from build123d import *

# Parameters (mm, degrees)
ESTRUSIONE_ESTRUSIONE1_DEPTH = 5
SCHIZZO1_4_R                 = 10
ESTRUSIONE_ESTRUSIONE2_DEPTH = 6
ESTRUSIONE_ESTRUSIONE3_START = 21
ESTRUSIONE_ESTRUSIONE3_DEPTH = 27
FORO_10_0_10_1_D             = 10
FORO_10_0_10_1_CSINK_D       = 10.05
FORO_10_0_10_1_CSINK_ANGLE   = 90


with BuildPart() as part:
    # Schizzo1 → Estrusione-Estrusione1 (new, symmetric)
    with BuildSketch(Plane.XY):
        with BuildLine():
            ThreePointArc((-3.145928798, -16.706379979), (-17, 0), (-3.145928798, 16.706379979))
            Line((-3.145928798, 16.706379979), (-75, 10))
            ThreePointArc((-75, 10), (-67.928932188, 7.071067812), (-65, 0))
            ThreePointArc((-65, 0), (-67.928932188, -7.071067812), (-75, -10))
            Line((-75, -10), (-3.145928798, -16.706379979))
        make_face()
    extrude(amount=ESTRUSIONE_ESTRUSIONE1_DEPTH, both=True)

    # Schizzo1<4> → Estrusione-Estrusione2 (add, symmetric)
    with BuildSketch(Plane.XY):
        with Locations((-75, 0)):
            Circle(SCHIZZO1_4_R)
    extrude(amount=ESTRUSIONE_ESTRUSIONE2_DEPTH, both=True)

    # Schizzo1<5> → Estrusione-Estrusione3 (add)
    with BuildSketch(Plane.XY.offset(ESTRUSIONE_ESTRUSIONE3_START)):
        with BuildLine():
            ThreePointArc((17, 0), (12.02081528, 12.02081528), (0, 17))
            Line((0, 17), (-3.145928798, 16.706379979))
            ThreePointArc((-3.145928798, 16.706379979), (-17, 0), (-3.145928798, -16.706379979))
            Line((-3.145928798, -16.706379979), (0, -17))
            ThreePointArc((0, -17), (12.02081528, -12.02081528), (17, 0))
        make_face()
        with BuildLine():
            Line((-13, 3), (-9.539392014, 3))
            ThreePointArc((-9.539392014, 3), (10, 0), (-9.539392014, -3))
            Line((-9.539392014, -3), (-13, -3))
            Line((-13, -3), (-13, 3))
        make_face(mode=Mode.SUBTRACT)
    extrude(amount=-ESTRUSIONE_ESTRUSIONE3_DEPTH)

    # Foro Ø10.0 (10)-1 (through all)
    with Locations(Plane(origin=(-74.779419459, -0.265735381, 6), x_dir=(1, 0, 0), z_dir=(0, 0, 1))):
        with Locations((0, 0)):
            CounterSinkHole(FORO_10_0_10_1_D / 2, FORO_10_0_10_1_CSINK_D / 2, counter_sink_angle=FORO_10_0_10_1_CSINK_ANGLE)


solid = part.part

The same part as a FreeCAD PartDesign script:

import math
import FreeCAD as App
import Part
import Sketcher
Q = App.Units.Quantity

doc = App.newDocument("Part")
params = doc.addObject("Spreadsheet::Sheet", "Params")
for row, (alias, value) in enumerate([
    ("sketch1_radius", "17 mm"),
    ("sketch1_radius2", "10 mm"),
    ("pad1_length", "10 mm"),
    ("sketch2_diameter", "20 mm"),
    ("pad2_length", "12 mm"),
    ("sketch3_radius", "17 mm"),
    ("sketch3_radius2", "10 mm"),
    ("sketch3_height", "6 mm"),
    ("pad3_length", "27 mm"),
    ("sketch4_diameter", "10 mm"),
    ("hole_diameter", "10 mm"),
    ("hole_csink_diameter", "10.05 mm"),
], start=1):
    params.set(f"A{row}", alias)
    params.set(f"B{row}", "=" + value)
    params.setAlias(f"B{row}", alias)

body = doc.addObject("PartDesign::Body", "Body")

# Sketch on XY plane
sketch1 = body.newObject("Sketcher::SketchObject", "Sketch")
sketch1.AttachmentSupport = (doc.getObject("XY_Plane"), [""])
sketch1.MapMode = "FlatFace"
sketch1.addGeometry([
    Part.ArcOfCircle(Part.Circle(App.Vector(0, 0, 0), App.Vector(0, 0, 1), 17), math.radians(101), math.radians(259)),  # 0
    Part.LineSegment(App.Vector(-3, 17, 0), App.Vector(-75, 10, 0)),  # 1
    Part.ArcOfCircle(Part.Circle(App.Vector(-75, 0, 0), App.Vector(0, 0, 1), 10), math.radians(0), math.radians(90)),  # 2
    Part.ArcOfCircle(Part.Circle(App.Vector(-75, 0, 0), App.Vector(0, 0, 1), 10), math.radians(-90), math.radians(0)),  # 3
    Part.LineSegment(App.Vector(-75, -10, 0), App.Vector(-3, -17, 0)),  # 4
], False)
sketch1.addConstraint([
    Sketcher.Constraint("Coincident", 0, 1, 1, 1),
    Sketcher.Constraint("Coincident", 1, 2, 2, 2),
    Sketcher.Constraint("Tangent", 2, 1, 3, 2),
    Sketcher.Constraint("Coincident", 3, 1, 4, 1),
    Sketcher.Constraint("Coincident", 4, 2, 0, 2),
    Sketcher.Constraint("Coincident", 0, 3, -1, 1),
    Sketcher.Constraint("Equal", 2, 3),
    Sketcher.Constraint("Symmetric", 1, 2, 3, 1, -1),
    Sketcher.Constraint("PointOnObject", 2, 1, -1),
    Sketcher.Constraint("Vertical", 3, 3, 1, 2),
    Sketcher.Constraint("Vertical", 0, 1, 4, 2),
    Sketcher.Constraint("Radius", 0, Q("17 mm")),
    Sketcher.Constraint("Radius", 2, Q("10 mm")),
    Sketcher.Constraint("DistanceX", 2, 3, -1, 1, Q("75 mm")),
    Sketcher.Constraint("DistanceX", 0, 1, -1, 1, Q("3.145929 mm")),
])
sketch1.setExpression("Constraints[11]", "Params.sketch1_radius")
sketch1.setExpression("Constraints[12]", "Params.sketch1_radius2")
pad1 = body.newObject("PartDesign::Pad", "Pad")
pad1.Profile = sketch1
pad1.setExpression("Length", "Params.pad1_length")
pad1.Midplane = True

# Sketch on XY plane
sketch2 = body.newObject("Sketcher::SketchObject", "Sketch001")
sketch2.AttachmentSupport = (doc.getObject("XY_Plane"), [""])
sketch2.MapMode = "FlatFace"
sketch2.addGeometry(Part.Circle(App.Vector(-75, 0, 0), App.Vector(0, 0, 1), 10), False)
sketch2.addConstraint([
    Sketcher.Constraint("PointOnObject", 0, 3, -1),
    Sketcher.Constraint("Diameter", 0, Q("20 mm")),
    Sketcher.Constraint("DistanceX", 0, 3, -1, 1, Q("75 mm")),
])
sketch2.setExpression("Constraints[1]", "Params.sketch2_diameter")
pad2 = body.newObject("PartDesign::Pad", "Pad001")
pad2.Profile = sketch2
pad2.setExpression("Length", "Params.pad2_length")
pad2.Midplane = True

# Sketch on XY plane
sketch3 = body.newObject("Sketcher::SketchObject", "Sketch002")
sketch3.AttachmentSupport = (doc.getObject("XY_Plane"), [""])
sketch3.MapMode = "FlatFace"
sketch3.AttachmentOffset = App.Placement(App.Vector(0, 0, 21), App.Rotation())
sketch3.addGeometry([
    Part.ArcOfCircle(Part.Circle(App.Vector(0, 0, 0), App.Vector(0, 0, 1), 17), math.radians(0), math.radians(90)),  # 0
    Part.LineSegment(App.Vector(0, 17, 0), App.Vector(-3.1, 16.7, 0)),  # 1
    Part.ArcOfCircle(Part.Circle(App.Vector(0, 0, 0), App.Vector(0, 0, 1), 17), math.radians(101), math.radians(259)),  # 2
    Part.LineSegment(App.Vector(-3.1, -16.7, 0), App.Vector(0, -17, 0)),  # 3
    Part.ArcOfCircle(Part.Circle(App.Vector(0, 0, 0), App.Vector(0, 0, 1), 17), math.radians(-90), math.radians(0)),  # 4
    Part.LineSegment(App.Vector(-13, -3, 0), App.Vector(-13, 3, 0)),  # 5
    Part.LineSegment(App.Vector(-13, 3, 0), App.Vector(-9.5, 3, 0)),  # 6
    Part.ArcOfCircle(Part.Circle(App.Vector(0, 0, 0), App.Vector(0, 0, 1), 10), math.radians(-163), math.radians(163)),  # 7
    Part.LineSegment(App.Vector(-9.5, -3, 0), App.Vector(-13, -3, 0)),  # 8
], False)
sketch3.addConstraint([
    Sketcher.Constraint("Coincident", 0, 2, 1, 1),
    Sketcher.Constraint("Coincident", 1, 2, 2, 1),
    Sketcher.Constraint("Coincident", 2, 2, 3, 1),
    Sketcher.Constraint("Coincident", 3, 2, 4, 1),
    Sketcher.Constraint("Tangent", 4, 2, 0, 1),
    Sketcher.Constraint("Coincident", 5, 2, 6, 1),
    Sketcher.Constraint("Coincident", 6, 2, 7, 2),
    Sketcher.Constraint("Coincident", 7, 1, 8, 1),
    Sketcher.Constraint("Coincident", 8, 2, 5, 1),
    Sketcher.Constraint("Vertical", 5),
    Sketcher.Constraint("Horizontal", 6),
    Sketcher.Constraint("Horizontal", 8),
    Sketcher.Constraint("Coincident", 0, 3, -1, 1),
    Sketcher.Constraint("Coincident", 2, 3, -1, 1),
    Sketcher.Constraint("Coincident", 7, 3, -1, 1),
    Sketcher.Constraint("Equal", 0, 2),
    Sketcher.Constraint("Equal", 2, 4),
    Sketcher.Constraint("PointOnObject", 0, 2, -2),
    Sketcher.Constraint("PointOnObject", 3, 2, -2),
    Sketcher.Constraint("PointOnObject", 4, 2, -1),
    Sketcher.Constraint("Vertical", 1, 2, 2, 2),
    Sketcher.Constraint("Vertical", 6, 2, 7, 1),
    Sketcher.Constraint("Radius", 0, Q("17 mm")),
    Sketcher.Constraint("Radius", 7, Q("10 mm")),
    Sketcher.Constraint("DistanceY", 5, 1, 5, 2, Q("6 mm")),
    Sketcher.Constraint("DistanceX", 5, 2, -1, 1, Q("13 mm")),
    Sketcher.Constraint("Distance", 1, Q("3.159601 mm")),
])
sketch3.setExpression("Constraints[22]", "Params.sketch3_radius")
sketch3.setExpression("Constraints[23]", "Params.sketch3_radius2")
sketch3.setExpression("Constraints[24]", "Params.sketch3_height")
pad3 = body.newObject("PartDesign::Pad", "Pad002")
pad3.Profile = sketch3
pad3.setExpression("Length", "Params.pad3_length")
pad3.Reversed = True

# Sketch on XY plane
sketch4 = body.newObject("Sketcher::SketchObject", "Sketch003")
sketch4.AttachmentSupport = (doc.getObject("XY_Plane"), [""])
sketch4.MapMode = "FlatFace"
sketch4.AttachmentOffset = App.Placement(App.Vector(0, 0, 6), App.Rotation())
sketch4.addGeometry(Part.Circle(App.Vector(-75, 0, 0), App.Vector(0, 0, 1), 5), False)
sketch4.addConstraint([
    Sketcher.Constraint("Diameter", 0, Q("10 mm")),
    Sketcher.Constraint("DistanceX", 0, 3, -1, 1, Q("74.779419 mm")),
    Sketcher.Constraint("DistanceY", 0, 3, -1, 1, Q("0.265735 mm")),
])
sketch4.setExpression("Constraints[0]", "Params.sketch4_diameter")
doc.recompute()
hole = body.newObject("PartDesign::Hole", "Hole")
hole.Profile = sketch4
hole.ThreadType = "None"
hole.setExpression("Diameter", "Params.hole_diameter")
hole.DepthType = "ThroughAll"
hole.HoleCutType = "Countersink"
hole.setExpression("HoleCutDiameter", "Params.hole_csink_diameter")
hole.HoleCutCountersinkAngle = 90

doc.recompute()
